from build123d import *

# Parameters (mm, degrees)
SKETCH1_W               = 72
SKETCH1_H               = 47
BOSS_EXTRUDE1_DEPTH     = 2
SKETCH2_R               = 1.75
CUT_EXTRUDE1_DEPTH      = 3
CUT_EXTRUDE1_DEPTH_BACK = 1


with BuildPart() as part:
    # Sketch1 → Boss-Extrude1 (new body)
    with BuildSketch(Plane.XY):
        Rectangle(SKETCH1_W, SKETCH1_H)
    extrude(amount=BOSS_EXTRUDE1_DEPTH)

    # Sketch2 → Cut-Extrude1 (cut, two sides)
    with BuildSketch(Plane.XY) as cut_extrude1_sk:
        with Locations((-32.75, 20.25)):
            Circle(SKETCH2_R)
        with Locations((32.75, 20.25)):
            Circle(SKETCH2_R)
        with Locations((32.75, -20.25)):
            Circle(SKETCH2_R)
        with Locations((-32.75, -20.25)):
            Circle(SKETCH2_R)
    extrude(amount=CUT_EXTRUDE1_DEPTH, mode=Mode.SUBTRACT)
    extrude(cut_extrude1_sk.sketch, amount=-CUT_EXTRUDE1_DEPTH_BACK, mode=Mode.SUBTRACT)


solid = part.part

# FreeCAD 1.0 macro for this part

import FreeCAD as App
import Part
import Sketcher
from FreeCAD import Vector
Q = App.Units.Quantity

doc = App.newDocument("Part")
body = doc.addObject("PartDesign::Body", "Body")

sketch1 = body.newObject("Sketcher::SketchObject", "Sketch")
sketch1.AttachmentSupport = (doc.getObject("XY_Plane"), [""])
sketch1.MapMode = "FlatFace"
sketch1.addGeometry(Part.LineSegment(Vector(-36, 23.5, 0), Vector(-36, -23.5, 0)), False)
sketch1.addGeometry(Part.LineSegment(Vector(-36, -23.5, 0), Vector(36, -23.5, 0)), False)
sketch1.addGeometry(Part.LineSegment(Vector(36, -23.5, 0), Vector(36, 23.5, 0)), False)
sketch1.addGeometry(Part.LineSegment(Vector(36, 23.5, 0), Vector(-36, 23.5, 0)), False)
sketch1.addConstraint(Sketcher.Constraint("Coincident", 0, 2, 1, 1))
sketch1.addConstraint(Sketcher.Constraint("Coincident", 1, 2, 2, 1))
sketch1.addConstraint(Sketcher.Constraint("Coincident", 2, 2, 3, 1))
sketch1.addConstraint(Sketcher.Constraint("Coincident", 3, 2, 0, 1))
sketch1.addConstraint(Sketcher.Constraint("Vertical", 0))
sketch1.addConstraint(Sketcher.Constraint("Horizontal", 1))
sketch1.addConstraint(Sketcher.Constraint("Vertical", 2))
sketch1.addConstraint(Sketcher.Constraint("Horizontal", 3))
sketch1.addConstraint(Sketcher.Constraint("Symmetric", 0, 2, 2, 2, -1, 1))
sketch1.addConstraint(Sketcher.Constraint("DistanceX", 1, 1, 1, 2, Q("72 mm")))
sketch1.addConstraint(Sketcher.Constraint("DistanceY", 0, 2, 0, 1, Q("47 mm")))
pad1 = body.newObject("PartDesign::Pad", "Pad")
pad1.Profile = sketch1
pad1.Length = 2

sketch2 = body.newObject("Sketcher::SketchObject", "Sketch001")
sketch2.AttachmentSupport = (doc.getObject("XY_Plane"), [""])
sketch2.MapMode = "FlatFace"
sketch2.addGeometry(Part.Circle(Vector(-32.75, 20.25, 0), Vector(0, 0, 1), 1.75), False)
sketch2.addGeometry(Part.Circle(Vector(32.75, 20.25, 0), Vector(0, 0, 1), 1.75), False)
sketch2.addGeometry(Part.Circle(Vector(32.75, -20.25, 0), Vector(0, 0, 1), 1.75), False)
sketch2.addGeometry(Part.Circle(Vector(-32.75, -20.25, 0), Vector(0, 0, 1), 1.75), False)
sketch2.addConstraint(Sketcher.Constraint("Equal", 0, 1))
sketch2.addConstraint(Sketcher.Constraint("Equal", 1, 2))
sketch2.addConstraint(Sketcher.Constraint("Equal", 2, 3))
sketch2.addConstraint(Sketcher.Constraint("Symmetric", 0, 3, 2, 3, -1, 1))
sketch2.addConstraint(Sketcher.Constraint("Symmetric", 1, 3, 3, 3, -1, 1))
sketch2.addConstraint(Sketcher.Constraint("Symmetric", 0, 3, 1, 3, -2))
sketch2.addConstraint(Sketcher.Constraint("Diameter", 0, Q("3.5 mm")))
sketch2.addConstraint(Sketcher.Constraint("DistanceX", 0, 3, 1, 3, Q("65.5 mm")))
sketch2.addConstraint(Sketcher.Constraint("DistanceY", 2, 3, 1, 3, Q("40.5 mm")))
pocket1 = body.newObject("PartDesign::Pocket", "Pocket")
pocket1.Profile = sketch2
pocket1.Type = "ThroughAll"
pocket1.Midplane = True

doc.recompute()
